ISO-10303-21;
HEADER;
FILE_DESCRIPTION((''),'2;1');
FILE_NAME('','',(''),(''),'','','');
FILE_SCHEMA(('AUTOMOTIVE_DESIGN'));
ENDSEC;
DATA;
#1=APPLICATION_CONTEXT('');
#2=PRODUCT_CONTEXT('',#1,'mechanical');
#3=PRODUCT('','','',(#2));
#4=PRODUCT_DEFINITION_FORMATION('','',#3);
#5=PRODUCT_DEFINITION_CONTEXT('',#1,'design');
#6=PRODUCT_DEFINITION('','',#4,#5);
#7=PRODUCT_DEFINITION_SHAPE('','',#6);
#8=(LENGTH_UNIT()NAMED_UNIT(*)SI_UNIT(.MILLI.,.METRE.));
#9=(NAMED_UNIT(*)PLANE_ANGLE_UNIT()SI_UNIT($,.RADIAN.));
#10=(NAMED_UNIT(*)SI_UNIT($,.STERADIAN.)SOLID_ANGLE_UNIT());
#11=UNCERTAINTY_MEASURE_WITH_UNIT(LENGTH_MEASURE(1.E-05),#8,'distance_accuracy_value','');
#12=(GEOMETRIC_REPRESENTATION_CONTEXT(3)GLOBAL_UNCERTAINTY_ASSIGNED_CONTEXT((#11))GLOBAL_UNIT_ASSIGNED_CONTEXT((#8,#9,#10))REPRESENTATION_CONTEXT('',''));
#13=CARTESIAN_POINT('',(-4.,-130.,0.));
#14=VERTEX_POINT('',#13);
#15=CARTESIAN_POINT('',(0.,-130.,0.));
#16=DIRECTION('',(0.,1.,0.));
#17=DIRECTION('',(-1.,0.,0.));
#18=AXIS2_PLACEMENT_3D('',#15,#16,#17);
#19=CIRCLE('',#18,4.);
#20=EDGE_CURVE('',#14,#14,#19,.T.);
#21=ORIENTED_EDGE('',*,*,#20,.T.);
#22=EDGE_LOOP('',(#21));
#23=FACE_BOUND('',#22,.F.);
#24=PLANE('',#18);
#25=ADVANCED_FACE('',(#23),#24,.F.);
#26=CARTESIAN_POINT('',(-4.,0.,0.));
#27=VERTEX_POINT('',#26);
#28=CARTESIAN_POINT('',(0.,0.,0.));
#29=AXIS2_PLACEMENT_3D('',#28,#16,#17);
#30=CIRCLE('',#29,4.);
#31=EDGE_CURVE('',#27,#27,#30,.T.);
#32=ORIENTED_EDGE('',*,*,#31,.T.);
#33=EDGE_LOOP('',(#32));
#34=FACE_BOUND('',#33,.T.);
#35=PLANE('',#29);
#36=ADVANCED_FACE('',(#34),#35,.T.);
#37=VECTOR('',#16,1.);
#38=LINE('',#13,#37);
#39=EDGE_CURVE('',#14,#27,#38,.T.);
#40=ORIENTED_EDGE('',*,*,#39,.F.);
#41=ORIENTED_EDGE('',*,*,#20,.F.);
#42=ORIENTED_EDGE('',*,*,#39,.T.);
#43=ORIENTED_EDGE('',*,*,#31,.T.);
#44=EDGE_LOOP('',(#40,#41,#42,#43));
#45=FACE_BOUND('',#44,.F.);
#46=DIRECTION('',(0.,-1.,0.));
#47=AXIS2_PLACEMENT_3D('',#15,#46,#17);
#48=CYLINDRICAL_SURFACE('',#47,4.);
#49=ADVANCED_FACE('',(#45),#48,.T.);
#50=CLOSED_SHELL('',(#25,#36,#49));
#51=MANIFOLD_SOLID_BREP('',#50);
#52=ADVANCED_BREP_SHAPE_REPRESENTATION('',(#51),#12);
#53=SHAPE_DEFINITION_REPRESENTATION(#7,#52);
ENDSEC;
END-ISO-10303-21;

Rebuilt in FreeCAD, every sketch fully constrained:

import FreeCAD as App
import Part
import Sketcher

V = App.Vector

doc = App.newDocument("Part")
params = doc.addObject("Spreadsheet::Sheet", "Params")
for row, (alias, value) in enumerate([
    ("sketch1_diameter", "8 mm"),
    ("pad1_length", "130 mm"),
], start=1):
    params.set(f"A{row}", alias)
    params.set(f"B{row}", "=" + value)
    params.setAlias(f"B{row}", alias)

body = doc.addObject("PartDesign::Body", "Body")

sketch1 = doc.addObject("Sketcher::SketchObject", "Sketch")
body.addObject(sketch1)
sketch1.AttachmentSupport = (doc.XZ_Plane, [""])
sketch1.MapMode = "FlatFace"
sketch1.AttachmentOffset = App.Placement(V(0, 0, 130), App.Rotation())
sketch1.addGeometry(Part.Circle(V(0, 0, 0), V(0, 0, 1), 4), False)
sketch1.addConstraint(Sketcher.Constraint("Coincident", 0, 3, -1, 1))
sketch1.addConstraint(Sketcher.Constraint("Diameter", 0, 8.0))
sketch1.setExpression("Constraints[1]", "Params.sketch1_diameter")
pad1 = doc.addObject("PartDesign::Pad", "Pad")
body.addObject(pad1)
pad1.Profile = sketch1
pad1.setExpression("Length", "Params.pad1_length")
pad1.Reversed = True

doc.recompute()
